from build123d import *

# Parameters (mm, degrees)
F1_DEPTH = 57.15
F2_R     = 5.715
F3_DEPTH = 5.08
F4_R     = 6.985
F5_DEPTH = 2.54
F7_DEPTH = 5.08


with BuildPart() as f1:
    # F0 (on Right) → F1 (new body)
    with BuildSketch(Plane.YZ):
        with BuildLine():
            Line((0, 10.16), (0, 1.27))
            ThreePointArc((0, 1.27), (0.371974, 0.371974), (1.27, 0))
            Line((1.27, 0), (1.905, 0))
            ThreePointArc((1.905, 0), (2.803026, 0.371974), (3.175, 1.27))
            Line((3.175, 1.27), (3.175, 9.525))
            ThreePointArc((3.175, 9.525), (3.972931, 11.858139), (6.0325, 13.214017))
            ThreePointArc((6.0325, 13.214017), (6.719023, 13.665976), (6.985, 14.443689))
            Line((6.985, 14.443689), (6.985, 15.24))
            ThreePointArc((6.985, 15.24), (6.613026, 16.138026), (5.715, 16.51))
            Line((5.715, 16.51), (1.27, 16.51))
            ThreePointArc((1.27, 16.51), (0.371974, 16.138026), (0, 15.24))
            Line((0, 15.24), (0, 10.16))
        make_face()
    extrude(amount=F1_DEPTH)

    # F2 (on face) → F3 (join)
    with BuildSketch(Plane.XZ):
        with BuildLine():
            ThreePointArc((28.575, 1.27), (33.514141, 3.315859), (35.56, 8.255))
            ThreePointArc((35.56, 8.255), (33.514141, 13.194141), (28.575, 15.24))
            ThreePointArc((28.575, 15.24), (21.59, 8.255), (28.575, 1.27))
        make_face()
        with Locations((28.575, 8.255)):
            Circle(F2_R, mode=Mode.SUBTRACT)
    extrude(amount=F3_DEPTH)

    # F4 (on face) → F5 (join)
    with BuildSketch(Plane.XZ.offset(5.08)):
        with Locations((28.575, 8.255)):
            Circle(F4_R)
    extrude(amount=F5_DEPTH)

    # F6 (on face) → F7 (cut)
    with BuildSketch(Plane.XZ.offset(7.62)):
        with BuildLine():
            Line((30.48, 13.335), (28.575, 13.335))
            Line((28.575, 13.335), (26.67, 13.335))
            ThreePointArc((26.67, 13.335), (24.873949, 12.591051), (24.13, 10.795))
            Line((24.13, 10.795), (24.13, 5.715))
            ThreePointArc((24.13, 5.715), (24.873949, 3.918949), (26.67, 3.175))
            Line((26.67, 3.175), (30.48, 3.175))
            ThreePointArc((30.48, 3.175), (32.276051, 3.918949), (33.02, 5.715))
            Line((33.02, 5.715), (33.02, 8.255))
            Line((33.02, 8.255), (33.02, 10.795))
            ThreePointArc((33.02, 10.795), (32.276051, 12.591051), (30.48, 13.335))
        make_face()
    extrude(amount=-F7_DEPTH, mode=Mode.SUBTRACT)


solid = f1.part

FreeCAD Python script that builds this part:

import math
import FreeCAD as App
import Part
import Sketcher
Q = App.Units.Quantity

doc = App.newDocument("Part")
body = doc.addObject("PartDesign::Body", "Body")

# Sketch on YZ plane
sketch1 = doc.addObject("Sketcher::SketchObject", "Sketch")
body.addObject(sketch1)
sketch1.AttachmentSupport = (doc.YZ_Plane, [""])
sketch1.MapMode = "FlatFace"
sketch1.addGeometry(Part.ArcOfCircle(Part.Circle(App.Vector(1.3, 1.3, 0), App.Vector(0, 0, 1), 1.3), math.radians(180), math.radians(270)), False)
sketch1.addGeometry(Part.LineSegment(App.Vector(1.3, 0, 0), App.Vector(1.9, 0, 0)), False)
sketch1.addGeometry(Part.ArcOfCircle(Part.Circle(App.Vector(1.9, 1.3, 0), App.Vector(0, 0, 1), 1.3), math.radians(-90), math.radians(0)), False)
sketch1.addGeometry(Part.LineSegment(App.Vector(3.2, 1.3, 0), App.Vector(3.2, 9.5, 0)), False)
sketch1.addGeometry(Part.ArcOfCircle(Part.Circle(App.Vector(7, 9.5, 0), App.Vector(0, 0, 1), 3.8), math.radians(104), math.radians(180)), False)
sketch1.addGeometry(Part.ArcOfCircle(Part.Circle(App.Vector(5.7, 14.4, 0), App.Vector(0, 0, 1), 1.3), math.radians(-76), math.radians(0)), False)
sketch1.addGeometry(Part.LineSegment(App.Vector(7, 14.4, 0), App.Vector(7, 15.2, 0)), False)
sketch1.addGeometry(Part.ArcOfCircle(Part.Circle(App.Vector(5.7, 15.2, 0), App.Vector(0, 0, 1), 1.3), math.radians(0), math.radians(90)), False)
sketch1.addGeometry(Part.LineSegment(App.Vector(5.7, 16.5, 0), App.Vector(1.3, 16.5, 0)), False)
sketch1.addGeometry(Part.ArcOfCircle(Part.Circle(App.Vector(1.3, 15.2, 0), App.Vector(0, 0, 1), 1.3), math.radians(90), math.radians(180)), False)
sketch1.addGeometry(Part.LineSegment(App.Vector(0, 15.2, 0), App.Vector(0, 1.3, 0)), False)
sketch1.addConstraint(Sketcher.Constraint("Tangent", 0, 2, 1, 1))
sketch1.addConstraint(Sketcher.Constraint("Tangent", 1, 2, 2, 1))
sketch1.addConstraint(Sketcher.Constraint("Tangent", 2, 2, 3, 1))
sketch1.addConstraint(Sketcher.Constraint("Tangent", 3, 2, 4, 2))
sketch1.addConstraint(Sketcher.Constraint("Tangent", 4, 1, 5, 1))
sketch1.addConstraint(Sketcher.Constraint("Tangent", 5, 2, 6, 1))
sketch1.addConstraint(Sketcher.Constraint("Tangent", 6, 2, 7, 1))
sketch1.addConstraint(Sketcher.Constraint("Tangent", 7, 2, 8, 1))
sketch1.addConstraint(Sketcher.Constraint("Tangent", 8, 2, 9, 1))
sketch1.addConstraint(Sketcher.Constraint("Tangent", 9, 2, 10, 1))
sketch1.addConstraint(Sketcher.Constraint("Tangent", 10, 2, 0, 1))
sketch1.addConstraint(Sketcher.Constraint("Horizontal", 1))
sketch1.addConstraint(Sketcher.Constraint("Vertical", 3))
sketch1.addConstraint(Sketcher.Constraint("Vertical", 6))
sketch1.addConstraint(Sketcher.Constraint("Horizontal", 8))
sketch1.addConstraint(Sketcher.Constraint("Vertical", 10))
sketch1.addConstraint(Sketcher.Constraint("Equal", 0, 2))
sketch1.addConstraint(Sketcher.Constraint("Equal", 2, 5))
sketch1.addConstraint(Sketcher.Constraint("Equal", 5, 7))
sketch1.addConstraint(Sketcher.Constraint("Equal", 7, 9))
sketch1.addConstraint(Sketcher.Constraint("PointOnObject", 0, 2, -1))
sketch1.addConstraint(Sketcher.Constraint("PointOnObject", 9, 2, -2))
sketch1.addConstraint(Sketcher.Constraint("Radius", 0, Q("0.0499999 in")))
sketch1.addConstraint(Sketcher.Constraint("Radius", 4, Q("0.1500001 in")))
sketch1.addConstraint(Sketcher.Constraint("DistanceY", 10, 2, 10, 1, Q("0.55 in")))
sketch1.addConstraint(Sketcher.Constraint("DistanceX", 3, 2, 5, 3, Q("0.1 in")))
sketch1.addConstraint(Sketcher.Constraint("DistanceX", 1, 1, 1, 2, Q("0.025 in")))
sketch1.addConstraint(Sketcher.Constraint("DistanceY", 3, 1, 3, 2, Q("0.325 in")))
pad1 = doc.addObject("PartDesign::Pad", "Pad")
body.addObject(pad1)
pad1.Profile = sketch1
pad1.Length = Q("2.25 in")

# Sketch on XZ plane
sketch2 = doc.addObject("Sketcher::SketchObject", "Sketch001")
body.addObject(sketch2)
sketch2.AttachmentSupport = (doc.XZ_Plane, [""])
sketch2.MapMode = "FlatFace"
sketch2.addGeometry(Part.ArcOfCircle(Part.Circle(App.Vector(29, 8, 0), App.Vector(0, 0, 1), 7), math.radians(-90), math.radians(0)), False)
sketch2.addGeometry(Part.ArcOfCircle(Part.Circle(App.Vector(29, 8, 0), App.Vector(0, 0, 1), 7), math.radians(0), math.radians(90)), False)
sketch2.addGeometry(Part.ArcOfCircle(Part.Circle(App.Vector(29, 8, 0), App.Vector(0, 0, 1), 7), math.radians(90), math.radians(270)), False)
sketch2.addGeometry(Part.Circle(App.Vector(29, 8, 0), App.Vector(0, 0, 1), 6), False)
sketch2.addConstraint(Sketcher.Constraint("Tangent", 0, 2, 1, 1))
sketch2.addConstraint(Sketcher.Constraint("Tangent", 1, 2, 2, 1))
sketch2.addConstraint(Sketcher.Constraint("Tangent", 2, 2, 0, 1))
sketch2.addConstraint(Sketcher.Constraint("Coincident", 3, 3, 0, 3))
sketch2.addConstraint(Sketcher.Constraint("Horizontal", 3, 3, 0, 2))
sketch2.addConstraint(Sketcher.Constraint("Vertical", 3, 3, 1, 2))
sketch2.addConstraint(Sketcher.Constraint("Vertical", 1, 2, 2, 2))
sketch2.addConstraint(Sketcher.Constraint("Diameter", 3, Q("0.45 in")))
sketch2.addConstraint(Sketcher.Constraint("Radius", 0, Q("0.275 in")))
sketch2.addConstraint(Sketcher.Constraint("DistanceX", -1, 1, 0, 2, Q("1.4 in")))
sketch2.addConstraint(Sketcher.Constraint("DistanceY", -1, 1, 1, 2, Q("0.6 in")))
pad2 = doc.addObject("PartDesign::Pad", "Pad001")
body.addObject(pad2)
pad2.Profile = sketch2
pad2.Length = Q("0.2 in")

# Sketch on XZ plane
sketch3 = doc.addObject("Sketcher::SketchObject", "Sketch002")
body.addObject(sketch3)
sketch3.AttachmentSupport = (doc.XZ_Plane, [""])
sketch3.MapMode = "FlatFace"
sketch3.AttachmentOffset = App.Placement(App.Vector(0, 0, 0.2 * 25.4), App.Rotation())
sketch3.addGeometry(Part.Circle(App.Vector(29, 8, 0), App.Vector(0, 0, 1), 7), False)
sketch3.addConstraint(Sketcher.Constraint("Diameter", 0, Q("0.55 in")))
sketch3.addConstraint(Sketcher.Constraint("DistanceX", -1, 1, 0, 3, Q("1.125 in")))
sketch3.addConstraint(Sketcher.Constraint("DistanceY", -1, 1, 0, 3, Q("0.325 in")))
pad3 = doc.addObject("PartDesign::Pad", "Pad002")
body.addObject(pad3)
pad3.Profile = sketch3
pad3.Length = Q("0.1 in")

# Sketch on XZ plane
sketch4 = doc.addObject("Sketcher::SketchObject", "Sketch003")
body.addObject(sketch4)
sketch4.AttachmentSupport = (doc.XZ_Plane, [""])
sketch4.MapMode = "FlatFace"
sketch4.AttachmentOffset = App.Placement(App.Vector(0, 0, 0.3 * 25.4), App.Rotation())
sketch4.addGeometry(Part.LineSegment(App.Vector(30.5, 13.3, 0), App.Vector(26.7, 13.3, 0)), False)
sketch4.addGeometry(Part.ArcOfCircle(Part.Circle(App.Vector(26.7, 10.8, 0), App.Vector(0, 0, 1), 2.5), math.radians(90), math.radians(180)), False)
sketch4.addGeometry(Part.LineSegment(App.Vector(24.1, 10.8, 0), App.Vector(24.1, 5.7, 0)), False)
sketch4.addGeometry(Part.ArcOfCircle(Part.Circle(App.Vector(26.7, 5.7, 0), App.Vector(0, 0, 1), 2.5), math.radians(-180), math.radians(-90)), False)
sketch4.addGeometry(Part.LineSegment(App.Vector(26.7, 3.2, 0), App.Vector(30.5, 3.2, 0)), False)
sketch4.addGeometry(Part.ArcOfCircle(Part.Circle(App.Vector(30.5, 5.7, 0), App.Vector(0, 0, 1), 2.5), math.radians(-90), math.radians(0)), False)
sketch4.addGeometry(Part.LineSegment(App.Vector(33, 5.7, 0), App.Vector(33, 10.8, 0)), False)
sketch4.addGeometry(Part.ArcOfCircle(Part.Circle(App.Vector(30.5, 10.8, 0), App.Vector(0, 0, 1), 2.5), math.radians(0), math.radians(90)), False)
sketch4.addConstraint(Sketcher.Constraint("Tangent", 0, 2, 1, 1))
sketch4.addConstraint(Sketcher.Constraint("Tangent", 1, 2, 2, 1))
sketch4.addConstraint(Sketcher.Constraint("Tangent", 2, 2, 3, 1))
sketch4.addConstraint(Sketcher.Constraint("Tangent", 3, 2, 4, 1))
sketch4.addConstraint(Sketcher.Constraint("Tangent", 4, 2, 5, 1))
sketch4.addConstraint(Sketcher.Constraint("Tangent", 5, 2, 6, 1))
sketch4.addConstraint(Sketcher.Constraint("Tangent", 6, 2, 7, 1))
sketch4.addConstraint(Sketcher.Constraint("Tangent", 7, 2, 0, 1))
sketch4.addConstraint(Sketcher.Constraint("Horizontal", 0))
sketch4.addConstraint(Sketcher.Constraint("Vertical", 2))
sketch4.addConstraint(Sketcher.Constraint("Horizontal", 4))
sketch4.addConstraint(Sketcher.Constraint("Vertical", 6))
sketch4.addConstraint(Sketcher.Constraint("Equal", 1, 3))
sketch4.addConstraint(Sketcher.Constraint("Equal", 3, 5))
sketch4.addConstraint(Sketcher.Constraint("Equal", 5, 7))
sketch4.addConstraint(Sketcher.Constraint("Radius", 1, Q("0.1 in")))
sketch4.addConstraint(Sketcher.Constraint("DistanceY", 2, 2, 2, 1, Q("0.2 in")))
sketch4.addConstraint(Sketcher.Constraint("DistanceX", 0, 2, 0, 1, Q("0.15 in")))
sketch4.addConstraint(Sketcher.Constraint("DistanceX", -1, 1, 5, 3, Q("1.2 in")))
sketch4.addConstraint(Sketcher.Constraint("DistanceY", -1, 1, 1, 3, Q("0.425 in")))
pocket1 = doc.addObject("PartDesign::Pocket", "Pocket")
body.addObject(pocket1)
pocket1.Profile = sketch4
pocket1.Length = Q("0.2 in")

doc.recompute()
